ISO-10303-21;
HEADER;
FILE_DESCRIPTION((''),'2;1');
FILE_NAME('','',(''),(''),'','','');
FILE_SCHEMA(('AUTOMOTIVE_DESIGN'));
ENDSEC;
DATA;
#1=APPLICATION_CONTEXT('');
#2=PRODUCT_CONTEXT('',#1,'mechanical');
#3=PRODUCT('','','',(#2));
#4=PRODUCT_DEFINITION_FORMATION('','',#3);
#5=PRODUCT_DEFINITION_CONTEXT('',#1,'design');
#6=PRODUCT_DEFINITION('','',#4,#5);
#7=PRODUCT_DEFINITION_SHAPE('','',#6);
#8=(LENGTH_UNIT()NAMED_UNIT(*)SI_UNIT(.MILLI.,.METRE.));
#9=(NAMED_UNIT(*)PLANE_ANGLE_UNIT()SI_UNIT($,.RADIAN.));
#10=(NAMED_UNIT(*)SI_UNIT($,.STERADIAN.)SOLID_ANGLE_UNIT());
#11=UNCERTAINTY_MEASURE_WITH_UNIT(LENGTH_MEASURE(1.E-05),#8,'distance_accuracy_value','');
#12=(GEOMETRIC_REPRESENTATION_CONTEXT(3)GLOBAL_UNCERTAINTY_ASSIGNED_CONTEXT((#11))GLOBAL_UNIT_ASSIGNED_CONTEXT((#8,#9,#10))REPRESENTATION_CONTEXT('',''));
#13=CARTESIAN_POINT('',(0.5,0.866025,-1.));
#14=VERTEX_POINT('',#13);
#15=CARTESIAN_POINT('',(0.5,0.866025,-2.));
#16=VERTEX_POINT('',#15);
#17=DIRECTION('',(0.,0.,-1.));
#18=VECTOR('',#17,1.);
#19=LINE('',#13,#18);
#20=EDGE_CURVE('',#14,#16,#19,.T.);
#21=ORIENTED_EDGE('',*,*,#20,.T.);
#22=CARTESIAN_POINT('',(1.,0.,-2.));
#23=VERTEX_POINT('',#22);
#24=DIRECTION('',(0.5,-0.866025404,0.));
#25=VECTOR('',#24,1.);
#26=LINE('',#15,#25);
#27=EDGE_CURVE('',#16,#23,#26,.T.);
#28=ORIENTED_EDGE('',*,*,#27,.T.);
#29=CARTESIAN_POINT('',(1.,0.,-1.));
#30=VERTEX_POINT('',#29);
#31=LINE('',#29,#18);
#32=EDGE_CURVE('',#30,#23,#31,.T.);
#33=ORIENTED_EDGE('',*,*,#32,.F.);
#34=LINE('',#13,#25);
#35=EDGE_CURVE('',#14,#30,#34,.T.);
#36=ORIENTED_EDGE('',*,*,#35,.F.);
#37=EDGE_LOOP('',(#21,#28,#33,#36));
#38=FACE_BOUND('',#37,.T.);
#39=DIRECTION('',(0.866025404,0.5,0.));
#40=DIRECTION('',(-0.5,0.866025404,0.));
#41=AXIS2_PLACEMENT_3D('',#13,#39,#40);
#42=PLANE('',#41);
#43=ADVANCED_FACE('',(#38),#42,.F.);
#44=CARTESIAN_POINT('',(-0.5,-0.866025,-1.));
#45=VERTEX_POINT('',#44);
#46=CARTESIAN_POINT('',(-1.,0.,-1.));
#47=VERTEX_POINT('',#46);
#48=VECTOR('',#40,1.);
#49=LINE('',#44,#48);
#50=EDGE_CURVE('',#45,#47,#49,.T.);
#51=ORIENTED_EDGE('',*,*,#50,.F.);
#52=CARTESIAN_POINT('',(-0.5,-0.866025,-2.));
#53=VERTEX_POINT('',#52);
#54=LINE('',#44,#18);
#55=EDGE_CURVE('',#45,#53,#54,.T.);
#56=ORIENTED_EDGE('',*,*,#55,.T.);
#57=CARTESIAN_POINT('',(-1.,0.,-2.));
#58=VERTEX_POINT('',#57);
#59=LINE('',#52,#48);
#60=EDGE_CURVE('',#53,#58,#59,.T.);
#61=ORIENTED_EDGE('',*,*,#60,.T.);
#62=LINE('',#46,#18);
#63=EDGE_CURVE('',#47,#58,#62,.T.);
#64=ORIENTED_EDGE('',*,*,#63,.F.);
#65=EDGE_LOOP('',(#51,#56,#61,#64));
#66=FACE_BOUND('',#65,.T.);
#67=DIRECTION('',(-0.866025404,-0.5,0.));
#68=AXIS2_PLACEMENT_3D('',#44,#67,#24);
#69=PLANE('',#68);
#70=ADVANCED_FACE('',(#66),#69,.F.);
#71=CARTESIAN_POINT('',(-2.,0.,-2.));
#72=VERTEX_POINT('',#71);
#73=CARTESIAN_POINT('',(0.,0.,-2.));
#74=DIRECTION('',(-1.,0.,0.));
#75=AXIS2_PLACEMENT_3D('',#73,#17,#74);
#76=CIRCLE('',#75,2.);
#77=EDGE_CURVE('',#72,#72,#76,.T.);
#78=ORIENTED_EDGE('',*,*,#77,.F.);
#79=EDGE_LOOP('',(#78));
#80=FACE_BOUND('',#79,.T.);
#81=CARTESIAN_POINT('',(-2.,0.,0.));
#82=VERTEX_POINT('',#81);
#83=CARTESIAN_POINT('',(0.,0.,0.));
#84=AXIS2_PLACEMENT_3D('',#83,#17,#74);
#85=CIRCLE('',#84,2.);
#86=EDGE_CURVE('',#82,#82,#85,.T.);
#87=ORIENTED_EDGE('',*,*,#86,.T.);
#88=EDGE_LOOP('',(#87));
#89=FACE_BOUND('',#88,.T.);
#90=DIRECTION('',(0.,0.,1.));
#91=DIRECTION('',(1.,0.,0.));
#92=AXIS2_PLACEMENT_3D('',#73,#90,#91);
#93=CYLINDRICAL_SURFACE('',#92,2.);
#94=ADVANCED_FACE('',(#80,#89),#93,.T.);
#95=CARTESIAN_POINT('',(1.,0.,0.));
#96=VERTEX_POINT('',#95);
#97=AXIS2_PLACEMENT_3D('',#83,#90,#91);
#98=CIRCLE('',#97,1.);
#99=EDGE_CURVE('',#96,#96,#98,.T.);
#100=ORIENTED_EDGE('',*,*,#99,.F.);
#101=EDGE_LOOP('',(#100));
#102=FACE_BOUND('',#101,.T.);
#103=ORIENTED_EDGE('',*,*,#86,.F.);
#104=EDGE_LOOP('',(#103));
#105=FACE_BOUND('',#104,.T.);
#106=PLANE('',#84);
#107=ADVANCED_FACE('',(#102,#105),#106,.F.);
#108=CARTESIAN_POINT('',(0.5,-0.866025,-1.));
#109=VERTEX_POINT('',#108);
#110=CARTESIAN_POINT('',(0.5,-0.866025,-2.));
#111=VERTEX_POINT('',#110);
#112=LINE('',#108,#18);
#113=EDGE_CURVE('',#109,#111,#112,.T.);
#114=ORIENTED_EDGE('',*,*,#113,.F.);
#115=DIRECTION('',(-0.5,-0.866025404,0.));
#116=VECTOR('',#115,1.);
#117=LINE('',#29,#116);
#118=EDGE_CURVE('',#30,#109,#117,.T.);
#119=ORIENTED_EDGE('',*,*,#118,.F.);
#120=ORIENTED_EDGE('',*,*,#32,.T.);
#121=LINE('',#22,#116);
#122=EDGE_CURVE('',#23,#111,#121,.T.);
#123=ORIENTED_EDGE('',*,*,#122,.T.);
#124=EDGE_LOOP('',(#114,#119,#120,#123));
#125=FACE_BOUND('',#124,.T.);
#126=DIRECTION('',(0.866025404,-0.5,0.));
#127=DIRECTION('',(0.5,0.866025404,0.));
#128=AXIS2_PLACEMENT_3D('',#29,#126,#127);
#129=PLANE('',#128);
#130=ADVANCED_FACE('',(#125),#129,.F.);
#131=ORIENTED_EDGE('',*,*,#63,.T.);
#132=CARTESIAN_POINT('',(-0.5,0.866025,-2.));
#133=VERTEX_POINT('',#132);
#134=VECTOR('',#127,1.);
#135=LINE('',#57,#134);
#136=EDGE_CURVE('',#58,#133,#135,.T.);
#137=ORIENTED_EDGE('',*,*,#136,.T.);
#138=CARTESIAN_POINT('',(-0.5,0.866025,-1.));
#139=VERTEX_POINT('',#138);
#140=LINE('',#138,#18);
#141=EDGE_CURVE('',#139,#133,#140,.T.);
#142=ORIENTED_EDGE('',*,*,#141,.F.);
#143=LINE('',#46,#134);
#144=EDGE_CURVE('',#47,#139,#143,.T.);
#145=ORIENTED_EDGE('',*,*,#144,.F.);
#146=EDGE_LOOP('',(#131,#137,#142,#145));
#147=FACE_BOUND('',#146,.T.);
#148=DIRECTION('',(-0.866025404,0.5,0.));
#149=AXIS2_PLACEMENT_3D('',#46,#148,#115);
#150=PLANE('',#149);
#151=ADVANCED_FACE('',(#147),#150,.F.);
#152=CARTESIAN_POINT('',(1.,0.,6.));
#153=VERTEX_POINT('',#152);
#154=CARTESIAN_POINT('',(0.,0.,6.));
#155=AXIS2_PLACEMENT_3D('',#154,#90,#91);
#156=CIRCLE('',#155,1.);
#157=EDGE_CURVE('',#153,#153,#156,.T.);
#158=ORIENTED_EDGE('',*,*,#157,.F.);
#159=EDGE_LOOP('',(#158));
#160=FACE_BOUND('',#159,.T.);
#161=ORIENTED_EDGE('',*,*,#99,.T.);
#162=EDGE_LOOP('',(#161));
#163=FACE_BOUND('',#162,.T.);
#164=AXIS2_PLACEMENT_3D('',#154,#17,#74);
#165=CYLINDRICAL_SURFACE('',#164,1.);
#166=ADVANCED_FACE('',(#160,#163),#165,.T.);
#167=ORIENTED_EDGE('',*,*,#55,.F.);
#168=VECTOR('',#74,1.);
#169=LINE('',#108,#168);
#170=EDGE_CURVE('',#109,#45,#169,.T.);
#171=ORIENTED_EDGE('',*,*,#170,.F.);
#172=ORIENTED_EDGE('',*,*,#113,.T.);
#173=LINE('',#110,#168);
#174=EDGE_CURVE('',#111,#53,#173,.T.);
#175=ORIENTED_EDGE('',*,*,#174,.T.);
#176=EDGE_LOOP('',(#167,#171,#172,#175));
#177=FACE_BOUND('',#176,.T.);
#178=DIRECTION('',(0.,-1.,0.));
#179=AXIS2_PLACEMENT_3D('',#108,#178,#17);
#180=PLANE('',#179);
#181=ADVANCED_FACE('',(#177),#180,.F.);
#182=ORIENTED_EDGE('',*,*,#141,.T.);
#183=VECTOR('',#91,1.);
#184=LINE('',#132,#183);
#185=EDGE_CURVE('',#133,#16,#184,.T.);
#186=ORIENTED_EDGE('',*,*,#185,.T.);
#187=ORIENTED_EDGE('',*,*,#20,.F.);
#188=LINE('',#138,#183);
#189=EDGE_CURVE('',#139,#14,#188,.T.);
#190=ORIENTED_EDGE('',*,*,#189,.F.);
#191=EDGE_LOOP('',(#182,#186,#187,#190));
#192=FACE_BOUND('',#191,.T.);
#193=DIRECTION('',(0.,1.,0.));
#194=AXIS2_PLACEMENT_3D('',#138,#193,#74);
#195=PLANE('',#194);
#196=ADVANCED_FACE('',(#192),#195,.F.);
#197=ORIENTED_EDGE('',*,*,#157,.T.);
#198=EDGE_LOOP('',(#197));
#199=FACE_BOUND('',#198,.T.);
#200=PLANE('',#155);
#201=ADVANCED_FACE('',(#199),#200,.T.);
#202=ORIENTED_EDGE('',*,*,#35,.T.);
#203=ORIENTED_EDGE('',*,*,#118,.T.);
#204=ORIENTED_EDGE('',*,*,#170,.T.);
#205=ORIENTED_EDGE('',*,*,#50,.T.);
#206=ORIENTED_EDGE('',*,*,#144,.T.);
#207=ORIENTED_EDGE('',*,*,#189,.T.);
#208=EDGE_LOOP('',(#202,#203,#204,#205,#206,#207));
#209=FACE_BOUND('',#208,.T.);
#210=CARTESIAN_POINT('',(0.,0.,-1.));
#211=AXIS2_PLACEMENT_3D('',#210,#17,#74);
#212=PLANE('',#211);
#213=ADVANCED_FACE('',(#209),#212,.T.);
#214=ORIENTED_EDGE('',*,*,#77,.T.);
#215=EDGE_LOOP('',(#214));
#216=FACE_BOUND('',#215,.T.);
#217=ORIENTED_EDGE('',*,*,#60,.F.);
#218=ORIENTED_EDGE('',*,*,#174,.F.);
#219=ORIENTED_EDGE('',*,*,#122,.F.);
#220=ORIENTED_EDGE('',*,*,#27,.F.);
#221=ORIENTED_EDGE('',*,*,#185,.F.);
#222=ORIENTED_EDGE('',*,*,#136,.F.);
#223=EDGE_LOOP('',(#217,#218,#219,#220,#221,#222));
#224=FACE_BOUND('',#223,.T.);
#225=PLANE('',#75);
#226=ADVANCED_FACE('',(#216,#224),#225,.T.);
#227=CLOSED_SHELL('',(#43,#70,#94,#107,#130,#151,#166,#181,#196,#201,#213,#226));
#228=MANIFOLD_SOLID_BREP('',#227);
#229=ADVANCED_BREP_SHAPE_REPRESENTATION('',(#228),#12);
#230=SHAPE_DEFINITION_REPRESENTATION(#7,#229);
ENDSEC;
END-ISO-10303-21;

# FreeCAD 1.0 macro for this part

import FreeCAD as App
import Part
import Sketcher
Q = App.Units.Quantity

doc = App.newDocument("Part")
body = doc.addObject("PartDesign::Body", "Body")

sketch1 = body.newObject("Sketcher::SketchObject", "Sketch")
sketch1.AttachmentSupport = (doc.getObject("XY_Plane"), [""])
sketch1.MapMode = "FlatFace"
sketch1.addGeometry(Part.Circle(App.Vector(0, 0, 0), App.Vector(0, 0, 1), 1), False)
sketch1.addConstraint([
    Sketcher.Constraint("Coincident", 0, 3, -1, 1),
    Sketcher.Constraint("Diameter", 0, 2.0),
])
pad1 = body.newObject("PartDesign::Pad", "Pad")
pad1.Profile = sketch1
pad1.Length = 6

sketch2 = body.newObject("Sketcher::SketchObject", "Sketch001")
sketch2.AttachmentSupport = (doc.getObject("XY_Plane"), [""])
sketch2.MapMode = "FlatFace"
sketch2.addGeometry(Part.Circle(App.Vector(0, 0, 0), App.Vector(0, 0, 1), 2), False)
sketch2.addConstraint([
    Sketcher.Constraint("Coincident", 0, 3, -1, 1),
    Sketcher.Constraint("Diameter", 0, 4.0),
])
pad2 = body.newObject("PartDesign::Pad", "Pad001")
pad2.Profile = sketch2
pad2.Length = 2
pad2.Reversed = True

sketch3 = body.newObject("Sketcher::SketchObject", "Sketch002")
sketch3.AttachmentSupport = (doc.getObject("XY_Plane"), [""])
sketch3.MapMode = "FlatFace"
sketch3.AttachmentOffset = App.Placement(App.Vector(0, 0, -2), App.Rotation())
sketch3.addGeometry([
    Part.LineSegment(App.Vector(-1, 0, 0), App.Vector(-0.5, 0.9, 0)),
    Part.LineSegment(App.Vector(-0.5, 0.9, 0), App.Vector(0.5, 0.9, 0)),
    Part.LineSegment(App.Vector(0.5, 0.9, 0), App.Vector(1, 0, 0)),
    Part.LineSegment(App.Vector(1, 0, 0), App.Vector(0.5, -0.9, 0)),
    Part.LineSegment(App.Vector(0.5, -0.9, 0), App.Vector(-0.5, -0.9, 0)),
    Part.LineSegment(App.Vector(-0.5, -0.9, 0), App.Vector(-1, 0, 0)),
], False)
sketch3.addConstraint([
    Sketcher.Constraint("Coincident", 0, 2, 1, 1),
    Sketcher.Constraint("Coincident", 1, 2, 2, 1),
    Sketcher.Constraint("Coincident", 2, 2, 3, 1),
    Sketcher.Constraint("Coincident", 3, 2, 4, 1),
    Sketcher.Constraint("Coincident", 4, 2, 5, 1),
    Sketcher.Constraint("Coincident", 5, 2, 0, 1),
    Sketcher.Constraint("Horizontal", 1),
    Sketcher.Constraint("Horizontal", 4),
    Sketcher.Constraint("Symmetric", 0, 2, 3, 2, -1, 1),
    Sketcher.Constraint("Symmetric", 2, 2, 5, 2, -1, 1),
    Sketcher.Constraint("PointOnObject", 2, 2, -1),
    Sketcher.Constraint("Parallel", 2, 5),
    Sketcher.Constraint("Vertical", 1, 2, 3, 2),
    Sketcher.Constraint("DistanceX", 1, 1, 1, 2, 1.0),
    Sketcher.Constraint("Angle", 0, Q("60 deg")),
    Sketcher.Constraint("Distance", 0, 1.0),
])
pocket1 = body.newObject("PartDesign::Pocket", "Pocket")
pocket1.Profile = sketch3
pocket1.Length = 1
pocket1.Reversed = True

doc.recompute()
